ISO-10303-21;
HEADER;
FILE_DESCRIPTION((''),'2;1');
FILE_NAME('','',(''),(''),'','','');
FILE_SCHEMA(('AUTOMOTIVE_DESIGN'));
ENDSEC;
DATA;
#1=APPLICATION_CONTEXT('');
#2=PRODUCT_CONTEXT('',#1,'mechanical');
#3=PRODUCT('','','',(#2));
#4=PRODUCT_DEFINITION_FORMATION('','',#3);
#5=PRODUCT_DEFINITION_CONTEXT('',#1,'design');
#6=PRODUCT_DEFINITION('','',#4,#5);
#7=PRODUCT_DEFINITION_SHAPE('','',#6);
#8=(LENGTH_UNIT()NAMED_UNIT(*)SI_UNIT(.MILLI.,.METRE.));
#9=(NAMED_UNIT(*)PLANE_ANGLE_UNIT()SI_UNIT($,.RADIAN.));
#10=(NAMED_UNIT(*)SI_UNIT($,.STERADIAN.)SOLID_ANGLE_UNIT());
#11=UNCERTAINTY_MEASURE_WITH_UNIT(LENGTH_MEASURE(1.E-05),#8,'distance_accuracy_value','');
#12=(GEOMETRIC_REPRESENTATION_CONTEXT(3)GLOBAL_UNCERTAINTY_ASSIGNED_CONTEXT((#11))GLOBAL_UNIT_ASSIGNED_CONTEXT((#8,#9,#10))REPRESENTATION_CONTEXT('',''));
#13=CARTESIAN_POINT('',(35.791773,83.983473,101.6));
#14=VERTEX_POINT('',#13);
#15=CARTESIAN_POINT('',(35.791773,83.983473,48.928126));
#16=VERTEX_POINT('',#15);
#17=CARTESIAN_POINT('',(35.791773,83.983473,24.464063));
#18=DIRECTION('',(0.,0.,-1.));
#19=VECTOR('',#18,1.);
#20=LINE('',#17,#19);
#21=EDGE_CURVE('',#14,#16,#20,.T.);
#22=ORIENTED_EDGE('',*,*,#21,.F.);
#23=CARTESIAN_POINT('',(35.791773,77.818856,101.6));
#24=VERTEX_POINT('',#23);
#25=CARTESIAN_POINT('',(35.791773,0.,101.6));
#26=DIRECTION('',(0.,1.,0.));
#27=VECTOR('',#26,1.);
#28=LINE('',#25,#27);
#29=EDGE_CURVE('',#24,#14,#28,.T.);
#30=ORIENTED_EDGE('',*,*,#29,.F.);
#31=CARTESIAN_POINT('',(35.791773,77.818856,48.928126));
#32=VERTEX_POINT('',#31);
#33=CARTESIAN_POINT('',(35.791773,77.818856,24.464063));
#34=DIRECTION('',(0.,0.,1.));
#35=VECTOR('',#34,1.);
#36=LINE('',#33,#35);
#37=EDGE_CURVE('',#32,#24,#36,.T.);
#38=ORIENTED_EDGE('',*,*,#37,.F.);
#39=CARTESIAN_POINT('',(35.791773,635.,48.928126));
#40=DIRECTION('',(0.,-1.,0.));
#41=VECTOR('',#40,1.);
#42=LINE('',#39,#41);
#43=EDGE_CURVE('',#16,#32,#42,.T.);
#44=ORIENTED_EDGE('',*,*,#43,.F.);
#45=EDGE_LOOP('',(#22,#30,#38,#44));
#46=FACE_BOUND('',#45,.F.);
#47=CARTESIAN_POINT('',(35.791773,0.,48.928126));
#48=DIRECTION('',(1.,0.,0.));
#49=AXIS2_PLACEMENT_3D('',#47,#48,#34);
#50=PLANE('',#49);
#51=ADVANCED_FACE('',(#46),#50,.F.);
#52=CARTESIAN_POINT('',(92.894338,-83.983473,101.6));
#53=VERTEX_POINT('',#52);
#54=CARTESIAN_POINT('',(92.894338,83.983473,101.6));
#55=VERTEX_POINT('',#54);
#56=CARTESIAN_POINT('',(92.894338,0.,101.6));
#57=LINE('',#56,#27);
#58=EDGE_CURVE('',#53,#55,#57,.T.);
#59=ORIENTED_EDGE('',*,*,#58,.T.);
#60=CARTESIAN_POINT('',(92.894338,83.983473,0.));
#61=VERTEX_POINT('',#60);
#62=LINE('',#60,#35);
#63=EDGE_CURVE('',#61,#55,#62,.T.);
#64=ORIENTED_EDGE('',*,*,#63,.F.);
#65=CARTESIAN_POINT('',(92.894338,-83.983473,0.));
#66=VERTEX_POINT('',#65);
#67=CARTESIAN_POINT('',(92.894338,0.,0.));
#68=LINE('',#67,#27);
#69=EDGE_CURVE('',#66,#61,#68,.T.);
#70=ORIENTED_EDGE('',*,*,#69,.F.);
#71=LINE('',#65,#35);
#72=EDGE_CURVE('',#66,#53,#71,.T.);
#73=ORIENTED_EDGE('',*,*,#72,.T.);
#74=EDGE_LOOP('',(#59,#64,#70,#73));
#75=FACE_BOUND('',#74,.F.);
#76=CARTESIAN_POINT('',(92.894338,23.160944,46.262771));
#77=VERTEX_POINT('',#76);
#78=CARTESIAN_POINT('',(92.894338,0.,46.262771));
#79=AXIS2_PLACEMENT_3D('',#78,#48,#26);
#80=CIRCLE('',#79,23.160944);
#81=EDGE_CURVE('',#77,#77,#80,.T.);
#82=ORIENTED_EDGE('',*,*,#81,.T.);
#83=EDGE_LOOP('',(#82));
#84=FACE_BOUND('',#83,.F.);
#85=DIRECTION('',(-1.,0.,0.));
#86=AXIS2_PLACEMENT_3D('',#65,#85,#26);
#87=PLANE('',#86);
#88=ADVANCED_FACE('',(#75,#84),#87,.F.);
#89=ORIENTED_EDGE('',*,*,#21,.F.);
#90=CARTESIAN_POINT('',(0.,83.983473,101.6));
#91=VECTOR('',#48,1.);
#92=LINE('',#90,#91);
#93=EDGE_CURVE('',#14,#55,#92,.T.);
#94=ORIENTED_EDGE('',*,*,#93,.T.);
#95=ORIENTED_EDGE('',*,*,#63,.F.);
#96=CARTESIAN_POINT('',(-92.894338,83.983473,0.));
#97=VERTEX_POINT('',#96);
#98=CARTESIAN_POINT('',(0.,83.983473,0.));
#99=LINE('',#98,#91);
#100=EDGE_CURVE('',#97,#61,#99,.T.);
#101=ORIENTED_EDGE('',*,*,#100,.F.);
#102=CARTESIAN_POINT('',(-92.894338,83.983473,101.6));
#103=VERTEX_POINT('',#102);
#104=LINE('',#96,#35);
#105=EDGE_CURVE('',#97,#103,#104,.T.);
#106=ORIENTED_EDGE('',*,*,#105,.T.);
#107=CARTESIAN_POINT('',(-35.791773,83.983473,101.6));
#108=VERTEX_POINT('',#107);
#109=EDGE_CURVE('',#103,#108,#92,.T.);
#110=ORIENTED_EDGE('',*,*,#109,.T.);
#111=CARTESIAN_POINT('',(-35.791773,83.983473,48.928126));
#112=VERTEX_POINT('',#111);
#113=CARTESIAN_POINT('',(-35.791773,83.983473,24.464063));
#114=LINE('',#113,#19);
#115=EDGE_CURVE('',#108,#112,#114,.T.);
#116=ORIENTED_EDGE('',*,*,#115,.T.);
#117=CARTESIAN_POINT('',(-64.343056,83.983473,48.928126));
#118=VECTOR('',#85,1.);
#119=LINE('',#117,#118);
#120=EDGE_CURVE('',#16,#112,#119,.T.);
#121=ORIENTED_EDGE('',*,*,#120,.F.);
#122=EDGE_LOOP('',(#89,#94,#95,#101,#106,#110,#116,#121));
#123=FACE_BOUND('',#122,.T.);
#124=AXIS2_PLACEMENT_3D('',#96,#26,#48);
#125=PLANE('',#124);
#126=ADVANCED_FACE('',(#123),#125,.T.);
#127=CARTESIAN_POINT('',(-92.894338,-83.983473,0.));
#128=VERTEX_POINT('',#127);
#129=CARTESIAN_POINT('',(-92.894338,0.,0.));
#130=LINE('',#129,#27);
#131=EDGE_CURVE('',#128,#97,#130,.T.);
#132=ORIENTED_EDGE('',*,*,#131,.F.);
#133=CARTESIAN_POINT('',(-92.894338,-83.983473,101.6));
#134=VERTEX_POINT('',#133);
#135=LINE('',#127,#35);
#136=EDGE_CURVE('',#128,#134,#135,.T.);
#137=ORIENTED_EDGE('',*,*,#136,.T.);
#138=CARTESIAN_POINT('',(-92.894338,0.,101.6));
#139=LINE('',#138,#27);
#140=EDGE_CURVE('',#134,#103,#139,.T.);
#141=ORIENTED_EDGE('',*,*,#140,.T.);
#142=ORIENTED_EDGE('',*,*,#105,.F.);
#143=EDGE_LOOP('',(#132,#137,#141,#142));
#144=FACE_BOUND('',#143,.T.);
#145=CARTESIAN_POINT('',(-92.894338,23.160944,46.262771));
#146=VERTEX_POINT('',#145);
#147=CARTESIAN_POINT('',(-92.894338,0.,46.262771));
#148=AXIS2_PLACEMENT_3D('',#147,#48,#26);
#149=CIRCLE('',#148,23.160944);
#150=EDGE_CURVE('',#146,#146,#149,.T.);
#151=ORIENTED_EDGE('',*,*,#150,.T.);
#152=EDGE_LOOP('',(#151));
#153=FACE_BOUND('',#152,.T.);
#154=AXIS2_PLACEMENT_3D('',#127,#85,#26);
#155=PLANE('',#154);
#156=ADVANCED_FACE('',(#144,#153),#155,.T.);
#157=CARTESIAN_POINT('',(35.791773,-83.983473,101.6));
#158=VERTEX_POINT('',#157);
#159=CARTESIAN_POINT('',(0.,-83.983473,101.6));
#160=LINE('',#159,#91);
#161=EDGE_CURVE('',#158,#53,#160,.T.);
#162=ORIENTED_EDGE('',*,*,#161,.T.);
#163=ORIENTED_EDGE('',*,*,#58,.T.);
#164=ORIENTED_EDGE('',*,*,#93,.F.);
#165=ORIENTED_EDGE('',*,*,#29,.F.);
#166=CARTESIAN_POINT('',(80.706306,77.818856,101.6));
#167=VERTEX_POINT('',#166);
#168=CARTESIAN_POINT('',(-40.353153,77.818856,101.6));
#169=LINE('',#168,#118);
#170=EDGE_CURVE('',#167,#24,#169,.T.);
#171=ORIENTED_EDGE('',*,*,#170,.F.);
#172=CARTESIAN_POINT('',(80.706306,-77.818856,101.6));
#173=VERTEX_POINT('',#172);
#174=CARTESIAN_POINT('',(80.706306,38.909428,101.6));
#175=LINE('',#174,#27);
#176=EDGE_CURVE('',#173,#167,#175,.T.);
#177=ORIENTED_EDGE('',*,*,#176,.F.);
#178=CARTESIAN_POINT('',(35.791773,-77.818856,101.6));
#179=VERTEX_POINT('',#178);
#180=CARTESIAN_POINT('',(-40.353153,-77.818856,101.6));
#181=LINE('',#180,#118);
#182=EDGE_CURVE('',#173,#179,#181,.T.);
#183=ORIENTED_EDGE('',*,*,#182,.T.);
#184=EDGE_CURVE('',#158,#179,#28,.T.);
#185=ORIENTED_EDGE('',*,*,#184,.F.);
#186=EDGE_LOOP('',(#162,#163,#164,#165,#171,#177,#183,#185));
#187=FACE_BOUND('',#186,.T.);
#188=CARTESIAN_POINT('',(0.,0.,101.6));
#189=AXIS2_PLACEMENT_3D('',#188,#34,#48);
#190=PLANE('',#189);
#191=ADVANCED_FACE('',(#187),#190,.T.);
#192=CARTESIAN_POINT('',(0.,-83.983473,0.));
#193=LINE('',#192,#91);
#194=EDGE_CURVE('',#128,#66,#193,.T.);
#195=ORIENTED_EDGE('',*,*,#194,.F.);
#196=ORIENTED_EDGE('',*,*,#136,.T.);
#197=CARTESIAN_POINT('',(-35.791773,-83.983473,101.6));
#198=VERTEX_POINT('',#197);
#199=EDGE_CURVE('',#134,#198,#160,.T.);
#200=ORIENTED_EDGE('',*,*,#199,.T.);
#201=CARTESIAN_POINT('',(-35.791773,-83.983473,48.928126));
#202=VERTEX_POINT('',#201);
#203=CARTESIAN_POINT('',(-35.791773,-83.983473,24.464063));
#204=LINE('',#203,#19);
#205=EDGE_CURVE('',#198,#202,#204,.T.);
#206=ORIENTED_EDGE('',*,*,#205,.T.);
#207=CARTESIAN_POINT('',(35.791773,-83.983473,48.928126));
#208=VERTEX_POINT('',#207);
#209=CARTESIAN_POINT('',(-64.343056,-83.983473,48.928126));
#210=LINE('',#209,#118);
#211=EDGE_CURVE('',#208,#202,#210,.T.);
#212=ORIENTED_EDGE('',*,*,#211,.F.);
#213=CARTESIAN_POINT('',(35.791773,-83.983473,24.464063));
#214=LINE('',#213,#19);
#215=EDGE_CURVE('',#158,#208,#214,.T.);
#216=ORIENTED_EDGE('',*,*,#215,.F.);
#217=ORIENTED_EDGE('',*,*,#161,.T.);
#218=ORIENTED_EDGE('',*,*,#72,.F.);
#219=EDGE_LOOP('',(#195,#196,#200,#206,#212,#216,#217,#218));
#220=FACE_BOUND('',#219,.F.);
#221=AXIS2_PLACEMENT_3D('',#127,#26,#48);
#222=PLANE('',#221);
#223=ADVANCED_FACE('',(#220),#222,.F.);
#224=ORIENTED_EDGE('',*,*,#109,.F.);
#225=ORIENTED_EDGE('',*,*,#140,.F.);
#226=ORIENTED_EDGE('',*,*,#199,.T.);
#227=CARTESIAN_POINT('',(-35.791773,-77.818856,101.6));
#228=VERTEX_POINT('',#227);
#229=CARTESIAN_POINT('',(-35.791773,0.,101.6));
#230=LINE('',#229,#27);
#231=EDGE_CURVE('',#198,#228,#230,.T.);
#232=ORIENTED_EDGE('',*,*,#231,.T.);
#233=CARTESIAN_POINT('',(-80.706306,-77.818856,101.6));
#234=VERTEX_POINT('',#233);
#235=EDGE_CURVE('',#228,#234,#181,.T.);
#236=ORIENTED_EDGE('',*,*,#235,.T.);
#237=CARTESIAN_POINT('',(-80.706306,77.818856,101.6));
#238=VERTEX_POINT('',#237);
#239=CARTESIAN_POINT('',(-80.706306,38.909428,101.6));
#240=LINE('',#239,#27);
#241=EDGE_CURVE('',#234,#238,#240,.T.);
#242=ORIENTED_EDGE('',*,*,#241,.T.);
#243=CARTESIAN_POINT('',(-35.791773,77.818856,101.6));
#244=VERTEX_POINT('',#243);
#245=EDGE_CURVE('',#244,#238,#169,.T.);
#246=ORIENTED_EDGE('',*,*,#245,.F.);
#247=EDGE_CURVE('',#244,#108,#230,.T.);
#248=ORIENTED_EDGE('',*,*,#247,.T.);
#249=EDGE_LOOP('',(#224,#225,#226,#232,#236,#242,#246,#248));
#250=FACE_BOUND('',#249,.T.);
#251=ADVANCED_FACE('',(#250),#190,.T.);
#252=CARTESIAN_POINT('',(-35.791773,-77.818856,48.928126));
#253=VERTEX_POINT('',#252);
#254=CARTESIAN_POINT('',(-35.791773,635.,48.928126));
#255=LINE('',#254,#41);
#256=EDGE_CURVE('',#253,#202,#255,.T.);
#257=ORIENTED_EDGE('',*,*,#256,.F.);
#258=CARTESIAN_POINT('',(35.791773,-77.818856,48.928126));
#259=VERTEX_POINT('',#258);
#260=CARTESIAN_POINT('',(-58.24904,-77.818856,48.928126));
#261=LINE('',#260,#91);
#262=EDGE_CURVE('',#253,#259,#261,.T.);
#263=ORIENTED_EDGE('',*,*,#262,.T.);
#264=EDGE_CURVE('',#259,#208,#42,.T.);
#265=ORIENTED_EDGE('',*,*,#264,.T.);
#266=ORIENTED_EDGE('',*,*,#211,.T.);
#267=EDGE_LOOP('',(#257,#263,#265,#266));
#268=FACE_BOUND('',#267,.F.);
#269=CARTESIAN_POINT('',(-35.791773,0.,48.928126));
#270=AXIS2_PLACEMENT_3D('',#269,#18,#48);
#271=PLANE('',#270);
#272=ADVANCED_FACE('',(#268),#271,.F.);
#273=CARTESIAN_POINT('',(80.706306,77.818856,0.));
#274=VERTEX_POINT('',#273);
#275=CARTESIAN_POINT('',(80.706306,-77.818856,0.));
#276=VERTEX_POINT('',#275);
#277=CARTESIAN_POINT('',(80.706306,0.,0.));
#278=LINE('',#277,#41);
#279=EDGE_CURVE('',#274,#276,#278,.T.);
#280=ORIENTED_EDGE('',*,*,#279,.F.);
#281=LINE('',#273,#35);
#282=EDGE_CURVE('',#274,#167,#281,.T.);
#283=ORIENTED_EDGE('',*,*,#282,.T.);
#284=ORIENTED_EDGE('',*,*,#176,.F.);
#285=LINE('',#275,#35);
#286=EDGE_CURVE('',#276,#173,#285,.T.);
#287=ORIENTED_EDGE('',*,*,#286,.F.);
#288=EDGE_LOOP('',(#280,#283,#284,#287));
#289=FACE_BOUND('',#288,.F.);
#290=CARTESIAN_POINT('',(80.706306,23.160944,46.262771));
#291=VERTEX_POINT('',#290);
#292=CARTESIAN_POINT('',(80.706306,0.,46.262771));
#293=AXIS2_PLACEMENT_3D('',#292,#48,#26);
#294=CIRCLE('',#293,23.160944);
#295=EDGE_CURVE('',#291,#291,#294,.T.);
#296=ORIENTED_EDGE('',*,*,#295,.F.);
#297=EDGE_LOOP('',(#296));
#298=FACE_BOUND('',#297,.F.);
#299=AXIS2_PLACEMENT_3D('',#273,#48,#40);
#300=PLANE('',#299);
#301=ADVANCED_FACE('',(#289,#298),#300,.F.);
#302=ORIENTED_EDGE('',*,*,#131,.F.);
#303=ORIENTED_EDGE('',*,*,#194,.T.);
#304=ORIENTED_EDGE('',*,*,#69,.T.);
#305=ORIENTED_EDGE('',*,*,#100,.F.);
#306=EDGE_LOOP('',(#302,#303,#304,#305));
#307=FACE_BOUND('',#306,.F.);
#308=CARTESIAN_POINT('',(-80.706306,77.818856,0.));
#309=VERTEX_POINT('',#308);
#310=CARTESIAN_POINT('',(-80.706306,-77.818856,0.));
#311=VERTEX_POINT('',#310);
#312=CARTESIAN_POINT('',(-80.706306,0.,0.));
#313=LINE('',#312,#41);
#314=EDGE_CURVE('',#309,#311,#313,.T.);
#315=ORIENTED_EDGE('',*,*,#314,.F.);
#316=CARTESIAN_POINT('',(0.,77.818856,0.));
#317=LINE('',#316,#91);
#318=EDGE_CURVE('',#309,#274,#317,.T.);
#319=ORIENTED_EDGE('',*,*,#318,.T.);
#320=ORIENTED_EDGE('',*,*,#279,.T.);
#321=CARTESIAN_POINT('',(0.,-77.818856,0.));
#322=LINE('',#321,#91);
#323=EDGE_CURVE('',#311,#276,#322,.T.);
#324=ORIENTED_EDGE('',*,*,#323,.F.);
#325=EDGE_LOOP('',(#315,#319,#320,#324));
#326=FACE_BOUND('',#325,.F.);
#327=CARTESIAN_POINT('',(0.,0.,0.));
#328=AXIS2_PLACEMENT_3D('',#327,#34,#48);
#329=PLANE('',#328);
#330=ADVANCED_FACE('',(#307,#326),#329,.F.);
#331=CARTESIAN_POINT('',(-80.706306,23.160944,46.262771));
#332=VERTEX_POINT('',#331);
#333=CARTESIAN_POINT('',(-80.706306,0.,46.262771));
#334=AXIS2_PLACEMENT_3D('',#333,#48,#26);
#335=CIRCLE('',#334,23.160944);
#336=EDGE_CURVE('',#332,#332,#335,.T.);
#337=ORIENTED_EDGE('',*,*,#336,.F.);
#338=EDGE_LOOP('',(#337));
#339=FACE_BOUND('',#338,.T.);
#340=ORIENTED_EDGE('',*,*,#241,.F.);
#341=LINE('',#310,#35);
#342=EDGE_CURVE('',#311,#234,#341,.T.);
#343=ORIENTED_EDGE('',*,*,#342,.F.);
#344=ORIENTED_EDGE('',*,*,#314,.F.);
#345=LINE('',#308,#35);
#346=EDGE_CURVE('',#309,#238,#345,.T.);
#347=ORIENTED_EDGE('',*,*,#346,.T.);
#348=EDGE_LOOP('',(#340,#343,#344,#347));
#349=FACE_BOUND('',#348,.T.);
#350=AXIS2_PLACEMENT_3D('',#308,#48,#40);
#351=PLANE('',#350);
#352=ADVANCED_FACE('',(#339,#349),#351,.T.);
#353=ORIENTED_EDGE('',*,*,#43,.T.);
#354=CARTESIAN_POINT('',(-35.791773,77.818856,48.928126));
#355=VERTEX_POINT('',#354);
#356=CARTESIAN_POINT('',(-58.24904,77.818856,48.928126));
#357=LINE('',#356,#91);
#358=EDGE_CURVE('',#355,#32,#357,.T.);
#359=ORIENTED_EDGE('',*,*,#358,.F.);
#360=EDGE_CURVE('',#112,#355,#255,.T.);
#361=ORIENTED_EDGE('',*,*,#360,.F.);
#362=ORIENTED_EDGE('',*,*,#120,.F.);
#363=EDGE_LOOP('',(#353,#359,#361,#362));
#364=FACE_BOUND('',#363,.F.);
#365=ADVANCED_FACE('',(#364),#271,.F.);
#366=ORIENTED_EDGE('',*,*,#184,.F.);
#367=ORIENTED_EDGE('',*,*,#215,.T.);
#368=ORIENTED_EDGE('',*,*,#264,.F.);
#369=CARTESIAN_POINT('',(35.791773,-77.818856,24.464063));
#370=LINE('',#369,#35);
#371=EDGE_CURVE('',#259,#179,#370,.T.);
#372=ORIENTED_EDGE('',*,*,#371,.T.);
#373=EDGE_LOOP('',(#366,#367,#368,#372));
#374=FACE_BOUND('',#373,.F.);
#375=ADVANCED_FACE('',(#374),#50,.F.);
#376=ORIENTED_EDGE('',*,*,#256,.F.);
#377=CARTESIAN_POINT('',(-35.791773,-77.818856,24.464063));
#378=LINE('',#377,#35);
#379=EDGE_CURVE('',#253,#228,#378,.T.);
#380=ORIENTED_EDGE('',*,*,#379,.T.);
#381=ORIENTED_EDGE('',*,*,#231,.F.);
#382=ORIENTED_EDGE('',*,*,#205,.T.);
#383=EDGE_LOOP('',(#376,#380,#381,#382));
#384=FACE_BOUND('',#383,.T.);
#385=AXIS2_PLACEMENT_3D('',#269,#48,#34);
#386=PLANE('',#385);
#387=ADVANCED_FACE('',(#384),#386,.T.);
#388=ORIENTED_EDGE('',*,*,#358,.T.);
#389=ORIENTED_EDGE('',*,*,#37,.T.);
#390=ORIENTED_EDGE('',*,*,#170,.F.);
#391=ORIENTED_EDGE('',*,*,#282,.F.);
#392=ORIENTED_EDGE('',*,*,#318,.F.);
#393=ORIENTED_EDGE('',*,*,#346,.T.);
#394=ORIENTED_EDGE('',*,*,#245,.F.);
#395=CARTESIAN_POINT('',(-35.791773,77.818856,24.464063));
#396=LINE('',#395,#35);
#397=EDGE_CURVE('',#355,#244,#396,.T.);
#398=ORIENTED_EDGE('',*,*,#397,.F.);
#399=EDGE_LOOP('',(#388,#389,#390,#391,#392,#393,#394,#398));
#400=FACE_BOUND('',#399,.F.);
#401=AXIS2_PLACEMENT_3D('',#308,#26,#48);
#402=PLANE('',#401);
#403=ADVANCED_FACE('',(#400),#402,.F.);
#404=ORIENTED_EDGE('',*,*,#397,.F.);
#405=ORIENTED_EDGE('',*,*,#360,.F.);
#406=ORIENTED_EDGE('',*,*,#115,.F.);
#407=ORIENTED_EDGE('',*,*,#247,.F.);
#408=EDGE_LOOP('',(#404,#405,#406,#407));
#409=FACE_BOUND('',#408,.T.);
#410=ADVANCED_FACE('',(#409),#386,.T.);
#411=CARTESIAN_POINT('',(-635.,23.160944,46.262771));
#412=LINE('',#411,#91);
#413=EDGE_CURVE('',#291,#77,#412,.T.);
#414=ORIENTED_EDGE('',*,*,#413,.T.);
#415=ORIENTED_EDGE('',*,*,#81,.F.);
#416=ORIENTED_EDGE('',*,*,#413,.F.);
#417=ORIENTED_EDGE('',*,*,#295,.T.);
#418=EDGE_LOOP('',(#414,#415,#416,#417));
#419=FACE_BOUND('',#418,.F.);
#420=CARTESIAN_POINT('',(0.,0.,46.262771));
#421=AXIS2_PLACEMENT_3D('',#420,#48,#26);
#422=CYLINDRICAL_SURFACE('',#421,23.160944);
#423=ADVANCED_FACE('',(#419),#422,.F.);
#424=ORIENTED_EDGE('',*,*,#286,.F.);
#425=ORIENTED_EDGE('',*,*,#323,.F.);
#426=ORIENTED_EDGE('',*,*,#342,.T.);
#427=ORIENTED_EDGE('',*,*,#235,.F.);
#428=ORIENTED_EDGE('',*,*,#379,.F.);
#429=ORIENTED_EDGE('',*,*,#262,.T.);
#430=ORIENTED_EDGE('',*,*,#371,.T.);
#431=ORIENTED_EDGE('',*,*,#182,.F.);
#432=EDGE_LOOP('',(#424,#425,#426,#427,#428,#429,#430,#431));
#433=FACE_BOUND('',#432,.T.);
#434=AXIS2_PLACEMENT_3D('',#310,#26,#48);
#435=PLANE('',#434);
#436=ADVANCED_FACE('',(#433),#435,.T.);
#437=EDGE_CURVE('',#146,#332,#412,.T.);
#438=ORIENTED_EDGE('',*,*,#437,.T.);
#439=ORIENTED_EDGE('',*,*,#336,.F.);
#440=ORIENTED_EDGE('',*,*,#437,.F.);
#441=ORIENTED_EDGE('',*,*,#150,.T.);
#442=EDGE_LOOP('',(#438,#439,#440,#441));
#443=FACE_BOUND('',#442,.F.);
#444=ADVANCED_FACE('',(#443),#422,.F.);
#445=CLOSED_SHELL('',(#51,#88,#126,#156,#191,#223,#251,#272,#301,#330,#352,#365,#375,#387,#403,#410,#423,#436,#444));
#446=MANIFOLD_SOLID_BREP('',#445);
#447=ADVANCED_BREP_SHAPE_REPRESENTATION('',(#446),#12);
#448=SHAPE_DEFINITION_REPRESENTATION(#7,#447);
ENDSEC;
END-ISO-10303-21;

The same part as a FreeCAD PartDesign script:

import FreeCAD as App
import Part
import Sketcher

V = App.Vector
Q = App.Units.Quantity

doc = App.newDocument("Part")
body = doc.addObject("PartDesign::Body", "Body")

# Sketch on XY plane
sketch1 = body.newObject("Sketcher::SketchObject", "Sketch")
sketch1.AttachmentSupport = (doc.getObject("XY_Plane"), [""])
sketch1.MapMode = "FlatFace"
sketch1.addGeometry([
    Part.LineSegment(V(-93, 84, 0), V(-93, -84, 0)),
    Part.LineSegment(V(-93, -84, 0), V(93, -84, 0)),
    Part.LineSegment(V(93, -84, 0), V(93, 84, 0)),
    Part.LineSegment(V(93, 84, 0), V(-93, 84, 0)),
], False)
sketch1.addConstraint([
    Sketcher.Constraint("Coincident", 0, 2, 1, 1),
    Sketcher.Constraint("Coincident", 1, 2, 2, 1),
    Sketcher.Constraint("Coincident", 2, 2, 3, 1),
    Sketcher.Constraint("Coincident", 3, 2, 0, 1),
    Sketcher.Constraint("Vertical", 0),
    Sketcher.Constraint("Horizontal", 1),
    Sketcher.Constraint("Vertical", 2),
    Sketcher.Constraint("Horizontal", 3),
    Sketcher.Constraint("Symmetric", 0, 2, 2, 2, -1, 1),
    Sketcher.Constraint("DistanceX", 1, 1, 1, 2, Q("185.788676 mm")),
    Sketcher.Constraint("DistanceY", 0, 2, 0, 1, Q("167.966946 mm")),
])
pad1 = body.newObject("PartDesign::Pad", "Pad")
pad1.Profile = sketch1
pad1.Length = Q("4 in")

# Sketch on XZ plane
sketch2 = body.newObject("Sketcher::SketchObject", "Sketch001")
sketch2.AttachmentSupport = (doc.getObject("XZ_Plane"), [""])
sketch2.MapMode = "FlatFace"
sketch2.addGeometry([
    Part.LineSegment(V(-36, 105, 0), V(-36, 49, 0)),
    Part.LineSegment(V(-36, 49, 0), V(36, 49, 0)),
    Part.LineSegment(V(36, 49, 0), V(36, 105, 0)),
    Part.LineSegment(V(36, 105, 0), V(-36, 105, 0)),
], False)
sketch2.addConstraint([
    Sketcher.Constraint("Coincident", 0, 2, 1, 1),
    Sketcher.Constraint("Coincident", 1, 2, 2, 1),
    Sketcher.Constraint("Coincident", 2, 2, 3, 1),
    Sketcher.Constraint("Coincident", 3, 2, 0, 1),
    Sketcher.Constraint("Vertical", 0),
    Sketcher.Constraint("Horizontal", 1),
    Sketcher.Constraint("Vertical", 2),
    Sketcher.Constraint("Horizontal", 3),
    Sketcher.Constraint("DistanceY", 0, 2, 0, 1, Q("55.591479 mm")),
    Sketcher.Constraint("DistanceX", 1, 1, 1, 2, Q("71.583546 mm")),
    Sketcher.Constraint("DistanceX", 0, 2, -1, 1, Q("35.791773 mm")),
    Sketcher.Constraint("DistanceY", -1, 1, 0, 2, Q("48.928126 mm")),
])
pocket1 = body.newObject("PartDesign::Pocket", "Pocket")
pocket1.Profile = sketch2
pocket1.Length = Q("50 in")
pocket1.Midplane = True

# Sketch on XY plane
sketch3 = body.newObject("Sketcher::SketchObject", "Sketch002")
sketch3.AttachmentSupport = (doc.getObject("XY_Plane"), [""])
sketch3.MapMode = "FlatFace"
sketch3.addGeometry([
    Part.LineSegment(V(-81, -78, 0), V(-81, 78, 0)),
    Part.LineSegment(V(-81, 78, 0), V(81, 78, 0)),
    Part.LineSegment(V(81, 78, 0), V(81, -78, 0)),
    Part.LineSegment(V(81, -78, 0), V(-81, -78, 0)),
], False)
sketch3.addConstraint([
    Sketcher.Constraint("Coincident", 0, 2, 1, 1),
    Sketcher.Constraint("Coincident", 1, 2, 2, 1),
    Sketcher.Constraint("Coincident", 2, 2, 3, 1),
    Sketcher.Constraint("Coincident", 3, 2, 0, 1),
    Sketcher.Constraint("Vertical", 0),
    Sketcher.Constraint("Horizontal", 1),
    Sketcher.Constraint("Vertical", 2),
    Sketcher.Constraint("Horizontal", 3),
    Sketcher.Constraint("Symmetric", 0, 2, 2, 2, -1, 1),
    Sketcher.Constraint("DistanceX", 1, 1, 1, 2, Q("161.412612 mm")),
    Sketcher.Constraint("DistanceY", 0, 1, 0, 2, Q("155.637712 mm")),
])
pocket2 = body.newObject("PartDesign::Pocket", "Pocket001")
pocket2.Profile = sketch3
pocket2.Length = Q("50 in")
pocket2.Reversed = True

# Sketch on YZ plane
sketch4 = body.newObject("Sketcher::SketchObject", "Sketch003")
sketch4.AttachmentSupport = (doc.getObject("YZ_Plane"), [""])
sketch4.MapMode = "FlatFace"
sketch4.addGeometry(Part.Circle(V(0, 46, 0), V(0, 0, 1), 23), False)
sketch4.addConstraint([
    Sketcher.Constraint("PointOnObject", 0, 3, -2),
    Sketcher.Constraint("Diameter", 0, Q("46.321888 mm")),
    Sketcher.Constraint("DistanceY", -1, 1, 0, 3, Q("46.262771 mm")),
])
pocket3 = body.newObject("PartDesign::Pocket", "Pocket002")
pocket3.Profile = sketch4
pocket3.Length = Q("50 in")
pocket3.Midplane = True

doc.recompute()
